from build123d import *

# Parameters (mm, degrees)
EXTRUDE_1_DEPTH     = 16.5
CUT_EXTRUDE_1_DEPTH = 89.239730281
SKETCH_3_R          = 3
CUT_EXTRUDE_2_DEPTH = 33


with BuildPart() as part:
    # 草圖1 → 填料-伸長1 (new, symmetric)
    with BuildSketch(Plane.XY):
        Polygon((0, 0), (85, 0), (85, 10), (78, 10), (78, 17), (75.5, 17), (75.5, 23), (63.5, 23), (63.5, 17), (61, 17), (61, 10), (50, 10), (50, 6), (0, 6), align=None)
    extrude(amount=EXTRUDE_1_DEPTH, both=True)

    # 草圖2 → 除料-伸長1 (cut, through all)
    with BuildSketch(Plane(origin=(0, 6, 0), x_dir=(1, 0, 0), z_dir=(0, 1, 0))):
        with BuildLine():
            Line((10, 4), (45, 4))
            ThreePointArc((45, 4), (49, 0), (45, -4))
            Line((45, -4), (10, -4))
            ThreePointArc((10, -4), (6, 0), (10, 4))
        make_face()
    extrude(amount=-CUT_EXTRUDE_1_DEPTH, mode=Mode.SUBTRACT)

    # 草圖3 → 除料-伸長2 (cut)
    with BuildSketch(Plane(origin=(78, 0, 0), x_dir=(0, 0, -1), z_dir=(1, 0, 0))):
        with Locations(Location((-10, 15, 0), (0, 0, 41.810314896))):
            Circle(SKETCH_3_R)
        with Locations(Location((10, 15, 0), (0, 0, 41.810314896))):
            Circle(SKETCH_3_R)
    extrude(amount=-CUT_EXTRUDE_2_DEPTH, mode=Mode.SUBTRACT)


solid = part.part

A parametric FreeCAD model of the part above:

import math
import FreeCAD as App
import Part
import Sketcher
Q = App.Units.Quantity


def add_polygon(sketch, points):
    """Adds a closed chain of lines whose ends are joined by coincident constraints."""
    first, n = sketch.GeometryCount, len(points)
    for a, b in zip(points, points[1:] + points[:1]):
        sketch.addGeometry(Part.LineSegment(App.Vector(*a, 0), App.Vector(*b, 0)), False)
    for i in range(n):
        sketch.addConstraint(Sketcher.Constraint("Coincident", first + i, 2, first + (i + 1) % n, 1))

doc = App.newDocument("Part")
body = doc.addObject("PartDesign::Body", "Body")

# Sketch on XY plane
sketch1 = doc.addObject("Sketcher::SketchObject", "Sketch")
body.addObject(sketch1)
sketch1.AttachmentSupport = (doc.XY_Plane, [""])
sketch1.MapMode = "FlatFace"
add_polygon(sketch1, [(0, 0), (85, 0), (85, 10), (78, 10), (78, 17), (75.5, 17), (75.5, 23), (63.5, 23), (63.5, 17), (61, 17), (61, 10), (50, 10), (50, 6), (0, 6)])  # lines 0-13
sketch1.addConstraint(Sketcher.Constraint("Horizontal", 0))
sketch1.addConstraint(Sketcher.Constraint("Vertical", 1))
sketch1.addConstraint(Sketcher.Constraint("Horizontal", 2))
sketch1.addConstraint(Sketcher.Constraint("Vertical", 3))
sketch1.addConstraint(Sketcher.Constraint("Horizontal", 4))
sketch1.addConstraint(Sketcher.Constraint("Vertical", 5))
sketch1.addConstraint(Sketcher.Constraint("Horizontal", 6))
sketch1.addConstraint(Sketcher.Constraint("Vertical", 7))
sketch1.addConstraint(Sketcher.Constraint("Horizontal", 8))
sketch1.addConstraint(Sketcher.Constraint("Vertical", 9))
sketch1.addConstraint(Sketcher.Constraint("Horizontal", 10))
sketch1.addConstraint(Sketcher.Constraint("Vertical", 11))
sketch1.addConstraint(Sketcher.Constraint("Horizontal", 12))
sketch1.addConstraint(Sketcher.Constraint("Vertical", 13))
sketch1.addConstraint(Sketcher.Constraint("Coincident", 13, 2, -1, 1))
sketch1.addConstraint(Sketcher.Constraint("Horizontal", 4, 2, 7, 2))
sketch1.addConstraint(Sketcher.Constraint("Horizontal", 2, 2, 9, 2))
sketch1.addConstraint(Sketcher.Constraint("Equal", 4, 8))
sketch1.addConstraint(Sketcher.Constraint("Equal", 2, 3))
sketch1.addConstraint(Sketcher.Constraint("Equal", 7, 13))
sketch1.addConstraint(Sketcher.Constraint("DistanceX", 0, 1, 0, 2, Q("85 mm")))
sketch1.addConstraint(Sketcher.Constraint("DistanceX", 2, 2, 2, 1, Q("7 mm")))
sketch1.addConstraint(Sketcher.Constraint("DistanceX", 6, 2, 6, 1, Q("12 mm")))
sketch1.addConstraint(Sketcher.Constraint("DistanceX", 10, 2, 10, 1, Q("11 mm")))
sketch1.addConstraint(Sketcher.Constraint("DistanceX", 12, 2, 12, 1, Q("50 mm")))
sketch1.addConstraint(Sketcher.Constraint("DistanceY", 1, 1, 1, 2, Q("10 mm")))
sketch1.addConstraint(Sketcher.Constraint("DistanceY", 5, 1, 5, 2, Q("6 mm")))
pad1 = doc.addObject("PartDesign::Pad", "Pad")
body.addObject(pad1)
pad1.Profile = sketch1
pad1.Length = 33
pad1.Midplane = True

# Sketch on XZ plane
sketch2 = doc.addObject("Sketcher::SketchObject", "Sketch001")
body.addObject(sketch2)
sketch2.AttachmentSupport = (doc.XZ_Plane, [""])
sketch2.MapMode = "FlatFace"
sketch2.AttachmentOffset = App.Placement(App.Vector(0, 0, -6), App.Rotation())
sketch2.addGeometry(Part.LineSegment(App.Vector(45, -4, 0), App.Vector(10, -4, 0)), False)
sketch2.addGeometry(Part.ArcOfCircle(Part.Circle(App.Vector(10, 0, 0), App.Vector(0, 0, 1), 4), math.radians(90), math.radians(270)), False)
sketch2.addGeometry(Part.LineSegment(App.Vector(10, 4, 0), App.Vector(45, 4, 0)), False)
sketch2.addGeometry(Part.ArcOfCircle(Part.Circle(App.Vector(45, 0, 0), App.Vector(0, 0, 1), 4), math.radians(-90), math.radians(90)), False)
sketch2.addConstraint(Sketcher.Constraint("Tangent", 0, 2, 1, 2))
sketch2.addConstraint(Sketcher.Constraint("Tangent", 1, 1, 2, 1))
sketch2.addConstraint(Sketcher.Constraint("Tangent", 2, 2, 3, 2))
sketch2.addConstraint(Sketcher.Constraint("Tangent", 3, 1, 0, 1))
sketch2.addConstraint(Sketcher.Constraint("Horizontal", 0))
sketch2.addConstraint(Sketcher.Constraint("Horizontal", 2))
sketch2.addConstraint(Sketcher.Constraint("PointOnObject", 1, 3, -1))
sketch2.addConstraint(Sketcher.Constraint("Radius", 1, Q("4 mm")))
sketch2.addConstraint(Sketcher.Constraint("DistanceX", 0, 2, 0, 1, Q("35 mm")))
sketch2.addConstraint(Sketcher.Constraint("DistanceX", -1, 1, 1, 3, Q("10 mm")))
pocket1 = doc.addObject("PartDesign::Pocket", "Pocket")
body.addObject(pocket1)
pocket1.Profile = sketch2
pocket1.Type = "ThroughAll"
pocket1.Reversed = True

# Sketch on YZ plane
sketch3 = doc.addObject("Sketcher::SketchObject", "Sketch002")
body.addObject(sketch3)
sketch3.AttachmentSupport = (doc.YZ_Plane, [""])
sketch3.MapMode = "FlatFace"
sketch3.AttachmentOffset = App.Placement(App.Vector(0, 0, 78), App.Rotation())
sketch3.addGeometry(Part.Circle(App.Vector(15, 10, 0), App.Vector(0, 0, 1), 3), False)
sketch3.addGeometry(Part.Circle(App.Vector(15, -10, 0), App.Vector(0, 0, 1), 3), False)
sketch3.addConstraint(Sketcher.Constraint("Equal", 0, 1))
sketch3.addConstraint(Sketcher.Constraint("Symmetric", 0, 3, 1, 3, -1))
sketch3.addConstraint(Sketcher.Constraint("Diameter", 0, Q("6 mm")))
sketch3.addConstraint(Sketcher.Constraint("DistanceX", -1, 1, 0, 3, Q("15 mm")))
sketch3.addConstraint(Sketcher.Constraint("DistanceY", -1, 1, 0, 3, Q("10 mm")))
pocket2 = doc.addObject("PartDesign::Pocket", "Pocket001")
body.addObject(pocket2)
pocket2.Profile = sketch3
pocket2.Length = 33

doc.recompute()
